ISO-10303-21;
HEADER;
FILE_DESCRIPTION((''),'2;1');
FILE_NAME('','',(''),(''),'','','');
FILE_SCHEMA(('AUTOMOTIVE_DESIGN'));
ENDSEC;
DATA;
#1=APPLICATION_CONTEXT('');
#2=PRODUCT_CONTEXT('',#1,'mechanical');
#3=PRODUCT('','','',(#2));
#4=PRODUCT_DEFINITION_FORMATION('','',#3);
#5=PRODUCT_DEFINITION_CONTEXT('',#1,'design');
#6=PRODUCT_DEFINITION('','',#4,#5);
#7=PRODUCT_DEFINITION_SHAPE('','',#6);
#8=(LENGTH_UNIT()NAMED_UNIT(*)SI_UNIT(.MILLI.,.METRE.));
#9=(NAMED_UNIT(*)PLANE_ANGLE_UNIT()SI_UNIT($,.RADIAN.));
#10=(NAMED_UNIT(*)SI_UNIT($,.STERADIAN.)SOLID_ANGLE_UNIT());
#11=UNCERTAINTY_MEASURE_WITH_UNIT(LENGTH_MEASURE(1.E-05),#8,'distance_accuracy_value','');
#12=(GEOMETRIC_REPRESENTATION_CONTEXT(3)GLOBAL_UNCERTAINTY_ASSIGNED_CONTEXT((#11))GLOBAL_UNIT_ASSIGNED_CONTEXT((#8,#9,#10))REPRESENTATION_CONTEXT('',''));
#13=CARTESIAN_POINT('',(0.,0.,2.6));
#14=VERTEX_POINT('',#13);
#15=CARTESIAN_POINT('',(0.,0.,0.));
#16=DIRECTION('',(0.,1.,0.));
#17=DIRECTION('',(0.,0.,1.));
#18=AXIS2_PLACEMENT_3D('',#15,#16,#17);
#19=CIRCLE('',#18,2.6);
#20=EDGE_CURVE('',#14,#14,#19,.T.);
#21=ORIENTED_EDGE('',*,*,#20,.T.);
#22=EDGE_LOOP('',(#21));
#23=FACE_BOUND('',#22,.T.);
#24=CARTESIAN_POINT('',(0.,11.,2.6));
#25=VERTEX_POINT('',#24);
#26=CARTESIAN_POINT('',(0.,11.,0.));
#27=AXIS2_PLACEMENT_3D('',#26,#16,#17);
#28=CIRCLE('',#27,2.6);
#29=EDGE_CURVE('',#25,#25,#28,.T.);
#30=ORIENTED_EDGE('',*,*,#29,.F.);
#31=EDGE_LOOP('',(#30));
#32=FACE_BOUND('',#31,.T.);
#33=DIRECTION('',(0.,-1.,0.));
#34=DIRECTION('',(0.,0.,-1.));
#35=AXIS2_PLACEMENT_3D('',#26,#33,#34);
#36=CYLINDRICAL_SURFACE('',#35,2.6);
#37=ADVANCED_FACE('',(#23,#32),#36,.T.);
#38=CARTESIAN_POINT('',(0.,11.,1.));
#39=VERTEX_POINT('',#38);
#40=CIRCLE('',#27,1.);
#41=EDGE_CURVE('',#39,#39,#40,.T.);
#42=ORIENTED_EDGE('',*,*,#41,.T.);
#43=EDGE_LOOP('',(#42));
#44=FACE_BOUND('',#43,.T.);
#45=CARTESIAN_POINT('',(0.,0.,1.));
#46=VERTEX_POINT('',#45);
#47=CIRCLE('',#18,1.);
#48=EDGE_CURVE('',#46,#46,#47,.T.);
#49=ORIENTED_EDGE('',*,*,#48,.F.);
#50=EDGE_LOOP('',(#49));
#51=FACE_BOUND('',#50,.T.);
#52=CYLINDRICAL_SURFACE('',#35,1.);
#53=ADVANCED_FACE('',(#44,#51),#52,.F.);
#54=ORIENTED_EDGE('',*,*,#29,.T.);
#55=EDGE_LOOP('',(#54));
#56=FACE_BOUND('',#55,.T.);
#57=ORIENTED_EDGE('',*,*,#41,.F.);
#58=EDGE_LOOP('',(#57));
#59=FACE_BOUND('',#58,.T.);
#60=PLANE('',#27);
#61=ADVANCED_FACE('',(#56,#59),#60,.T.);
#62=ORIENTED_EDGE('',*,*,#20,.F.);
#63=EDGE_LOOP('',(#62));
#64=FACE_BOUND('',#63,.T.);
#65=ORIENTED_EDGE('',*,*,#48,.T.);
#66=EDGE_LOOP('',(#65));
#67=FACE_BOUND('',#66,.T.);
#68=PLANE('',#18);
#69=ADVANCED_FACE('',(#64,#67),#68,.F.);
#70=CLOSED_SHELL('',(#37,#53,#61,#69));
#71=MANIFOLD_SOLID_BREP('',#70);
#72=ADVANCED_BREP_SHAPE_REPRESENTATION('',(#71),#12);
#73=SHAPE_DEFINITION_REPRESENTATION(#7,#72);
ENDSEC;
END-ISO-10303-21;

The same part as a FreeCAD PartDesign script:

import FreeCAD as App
import Part
import Sketcher

V = App.Vector
Q = App.Units.Quantity

doc = App.newDocument("Part")
params = doc.addObject("Spreadsheet::Sheet", "Params")
for row, (alias, value) in enumerate([
    ("sketch1_diameter", "2 mm"),
    ("sketch1_diameter2", "5.2 mm"),
    ("pad1_length", "11 mm"),
], start=1):
    params.set(f"A{row}", alias)
    params.set(f"B{row}", "=" + value)
    params.setAlias(f"B{row}", alias)

body = doc.addObject("PartDesign::Body", "Body")

# Sketch on XZ plane
sketch1 = body.newObject("Sketcher::SketchObject", "Sketch")
sketch1.AttachmentSupport = (doc.getObject("XZ_Plane"), [""])
sketch1.MapMode = "FlatFace"
sketch1.addGeometry([
    Part.Circle(V(0, 0, 0), V(0, 0, 1), 2.6),
    Part.Circle(V(0, 0, 0), V(0, 0, 1), 1),
], False)
sketch1.addConstraint([
    Sketcher.Constraint("Coincident", 0, 3, -1, 1),
    Sketcher.Constraint("Coincident", 1, 3, -1, 1),
    Sketcher.Constraint("Diameter", 1, Q("2 mm")),
    Sketcher.Constraint("Diameter", 0, Q("5.2 mm")),
])
sketch1.setExpression("Constraints[2]", "Params.sketch1_diameter")
sketch1.setExpression("Constraints[3]", "Params.sketch1_diameter2")
pad1 = body.newObject("PartDesign::Pad", "Pad")
pad1.Profile = sketch1
pad1.setExpression("Length", "Params.pad1_length")
pad1.Reversed = True

doc.recompute()
